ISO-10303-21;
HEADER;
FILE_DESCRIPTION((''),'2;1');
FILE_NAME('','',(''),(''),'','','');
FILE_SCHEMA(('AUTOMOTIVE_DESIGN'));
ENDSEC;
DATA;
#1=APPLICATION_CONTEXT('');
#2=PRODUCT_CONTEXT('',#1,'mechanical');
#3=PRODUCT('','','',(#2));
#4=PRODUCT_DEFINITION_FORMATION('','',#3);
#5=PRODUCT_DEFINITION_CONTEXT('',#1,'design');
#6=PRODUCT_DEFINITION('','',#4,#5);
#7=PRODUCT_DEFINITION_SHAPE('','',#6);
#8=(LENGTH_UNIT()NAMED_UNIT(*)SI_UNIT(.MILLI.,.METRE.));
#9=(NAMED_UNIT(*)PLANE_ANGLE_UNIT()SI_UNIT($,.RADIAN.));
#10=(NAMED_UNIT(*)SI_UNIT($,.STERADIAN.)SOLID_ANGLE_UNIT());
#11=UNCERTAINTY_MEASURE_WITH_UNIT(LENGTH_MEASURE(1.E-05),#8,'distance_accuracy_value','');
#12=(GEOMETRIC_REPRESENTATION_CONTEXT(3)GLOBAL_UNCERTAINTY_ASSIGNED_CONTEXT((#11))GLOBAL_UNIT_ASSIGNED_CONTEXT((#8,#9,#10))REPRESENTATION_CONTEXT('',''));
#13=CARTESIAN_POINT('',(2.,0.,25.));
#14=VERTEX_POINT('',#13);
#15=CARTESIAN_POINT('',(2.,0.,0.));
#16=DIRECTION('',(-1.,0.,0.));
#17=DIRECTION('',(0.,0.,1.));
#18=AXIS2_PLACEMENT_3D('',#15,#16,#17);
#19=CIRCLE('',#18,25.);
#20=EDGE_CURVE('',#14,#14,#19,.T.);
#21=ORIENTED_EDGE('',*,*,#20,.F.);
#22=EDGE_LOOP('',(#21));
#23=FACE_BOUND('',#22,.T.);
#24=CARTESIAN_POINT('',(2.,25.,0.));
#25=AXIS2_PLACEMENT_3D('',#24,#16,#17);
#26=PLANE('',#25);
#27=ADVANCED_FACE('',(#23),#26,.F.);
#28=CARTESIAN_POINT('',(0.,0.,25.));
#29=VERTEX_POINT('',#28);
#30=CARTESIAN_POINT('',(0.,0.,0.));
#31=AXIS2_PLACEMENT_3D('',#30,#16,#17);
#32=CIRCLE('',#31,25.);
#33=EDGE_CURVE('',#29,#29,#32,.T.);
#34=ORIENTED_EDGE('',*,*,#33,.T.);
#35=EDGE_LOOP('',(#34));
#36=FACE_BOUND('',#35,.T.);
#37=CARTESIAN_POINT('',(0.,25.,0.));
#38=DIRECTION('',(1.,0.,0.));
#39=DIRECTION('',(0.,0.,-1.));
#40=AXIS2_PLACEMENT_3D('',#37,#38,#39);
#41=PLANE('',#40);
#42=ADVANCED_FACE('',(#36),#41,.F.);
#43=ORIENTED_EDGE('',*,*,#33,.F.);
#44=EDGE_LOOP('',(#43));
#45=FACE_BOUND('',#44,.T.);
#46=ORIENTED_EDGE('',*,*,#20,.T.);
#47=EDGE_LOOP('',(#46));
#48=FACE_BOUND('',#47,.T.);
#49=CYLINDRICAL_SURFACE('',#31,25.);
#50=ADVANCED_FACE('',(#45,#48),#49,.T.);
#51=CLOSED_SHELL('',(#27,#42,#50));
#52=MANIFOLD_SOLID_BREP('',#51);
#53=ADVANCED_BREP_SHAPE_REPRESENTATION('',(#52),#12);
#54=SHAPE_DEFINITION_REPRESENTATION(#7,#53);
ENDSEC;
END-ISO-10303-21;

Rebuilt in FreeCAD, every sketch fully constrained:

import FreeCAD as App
import Part
import Sketcher
from FreeCAD import Vector


def add_polygon(sketch, points):
    """Adds a closed chain of lines whose ends are joined by coincident constraints."""
    first, n = sketch.GeometryCount, len(points)
    for a, b in zip(points, points[1:] + points[:1]):
        sketch.addGeometry(Part.LineSegment(App.Vector(*a, 0), App.Vector(*b, 0)), False)
    for i in range(n):
        sketch.addConstraint(Sketcher.Constraint("Coincident", first + i, 2, first + (i + 1) % n, 1))

doc = App.newDocument("Part")
body = doc.addObject("PartDesign::Body", "Body")

# Sketch on XY plane
sketch1 = body.newObject("Sketcher::SketchObject", "Sketch")
sketch1.AttachmentSupport = (doc.getObject("XY_Plane"), [""])
sketch1.MapMode = "FlatFace"
add_polygon(sketch1, [(0, 25), (0, 0), (2, 0), (2, 25)])  # lines 0-3
sketch1.addConstraint([
    Sketcher.Constraint("Vertical", 0),
    Sketcher.Constraint("Horizontal", 1),
    Sketcher.Constraint("Vertical", 2),
    Sketcher.Constraint("Horizontal", 3),
    Sketcher.Constraint("Coincident", 0, 2, -1, 1),
    Sketcher.Constraint("DistanceX", 1, 1, 1, 2, 2.0),
    Sketcher.Constraint("DistanceY", 0, 2, 0, 1, 25.0),
])
revolution = body.newObject("PartDesign::Revolution", "Revolution")
revolution.Profile = sketch1
revolution.ReferenceAxis = (sketch1, ["H_Axis"])
revolution.Angle = 360

doc.recompute()
